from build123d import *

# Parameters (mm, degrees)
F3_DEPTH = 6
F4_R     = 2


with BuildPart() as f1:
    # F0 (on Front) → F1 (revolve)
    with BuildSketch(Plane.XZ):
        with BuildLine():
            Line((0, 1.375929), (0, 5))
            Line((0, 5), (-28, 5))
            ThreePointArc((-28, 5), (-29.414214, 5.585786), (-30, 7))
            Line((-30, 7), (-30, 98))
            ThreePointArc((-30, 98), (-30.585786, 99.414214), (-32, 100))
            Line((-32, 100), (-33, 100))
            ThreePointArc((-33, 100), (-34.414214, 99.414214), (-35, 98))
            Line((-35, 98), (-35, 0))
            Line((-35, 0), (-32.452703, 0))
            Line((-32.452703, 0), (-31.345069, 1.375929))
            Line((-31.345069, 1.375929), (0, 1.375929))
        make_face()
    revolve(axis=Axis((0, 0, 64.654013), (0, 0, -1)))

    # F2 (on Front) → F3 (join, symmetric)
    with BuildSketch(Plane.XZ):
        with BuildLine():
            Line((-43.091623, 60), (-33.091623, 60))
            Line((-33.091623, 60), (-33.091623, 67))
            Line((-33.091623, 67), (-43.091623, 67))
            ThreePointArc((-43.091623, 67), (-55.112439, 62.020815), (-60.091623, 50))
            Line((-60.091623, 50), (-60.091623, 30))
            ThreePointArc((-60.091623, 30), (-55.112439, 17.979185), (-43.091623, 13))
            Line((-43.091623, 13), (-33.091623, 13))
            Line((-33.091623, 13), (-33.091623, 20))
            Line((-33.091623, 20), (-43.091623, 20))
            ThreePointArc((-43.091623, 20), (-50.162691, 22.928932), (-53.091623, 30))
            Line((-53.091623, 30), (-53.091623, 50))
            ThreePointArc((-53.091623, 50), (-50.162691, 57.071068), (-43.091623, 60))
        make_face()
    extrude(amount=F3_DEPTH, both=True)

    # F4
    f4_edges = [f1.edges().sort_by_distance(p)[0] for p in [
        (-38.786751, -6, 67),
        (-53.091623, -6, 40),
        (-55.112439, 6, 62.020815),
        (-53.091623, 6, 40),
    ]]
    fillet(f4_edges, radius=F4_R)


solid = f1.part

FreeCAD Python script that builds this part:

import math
import FreeCAD as App
import Part
import Sketcher
from FreeCAD import Vector


def edges_at(feature, points):
    """Names of the edges that pass closest to the given points."""
    edges = feature.Shape.Edges
    near = lambda p: min(range(len(edges)), key=lambda i: edges[i].distToShape(Part.Vertex(*p))[0])
    return sorted({f"Edge{near(p) + 1}" for p in points})

doc = App.newDocument("Part")
body = doc.addObject("PartDesign::Body", "Body")

# Sketch on XZ plane
sketch1 = doc.addObject("Sketcher::SketchObject", "Sketch")
body.addObject(sketch1)
sketch1.AttachmentSupport = (doc.XZ_Plane, [""])
sketch1.MapMode = "FlatFace"
sketch1.addGeometry(Part.LineSegment(Vector(0, 1.375929, 0), Vector(0, 5, 0)), False)
sketch1.addGeometry(Part.LineSegment(Vector(0, 5, 0), Vector(-28, 5, 0)), False)
sketch1.addGeometry(Part.ArcOfCircle(Part.Circle(Vector(-28.000001, 6.999999, 0), Vector(0, 0, 1), 1.999999), math.radians(179.999957), math.radians(270.000043)), False)
sketch1.addGeometry(Part.LineSegment(Vector(-30, 7, 0), Vector(-30, 98, 0)), False)
sketch1.addGeometry(Part.ArcOfCircle(Part.Circle(Vector(-31.999999, 98.000001, 0), Vector(0, 0, 1), 1.999999), math.radians(-0.000043), math.radians(90.000043)), False)
sketch1.addGeometry(Part.LineSegment(Vector(-32, 100, 0), Vector(-33, 100, 0)), False)
sketch1.addGeometry(Part.ArcOfCircle(Part.Circle(Vector(-33.000001, 98.000001, 0), Vector(0, 0, 1), 1.999999), math.radians(89.999957), math.radians(180.000043)), False)
sketch1.addGeometry(Part.LineSegment(Vector(-35, 98, 0), Vector(-35, 0, 0)), False)
sketch1.addGeometry(Part.LineSegment(Vector(-35, 0, 0), Vector(-32.452703, 0, 0)), False)
sketch1.addGeometry(Part.LineSegment(Vector(-32.452703, 0, 0), Vector(-31.345069, 1.375929, 0)), False)
sketch1.addGeometry(Part.LineSegment(Vector(-31.345069, 1.375929, 0), Vector(0, 1.375929, 0)), False)
sketch1.addConstraint(Sketcher.Constraint("Coincident", 0, 2, 1, 1))
sketch1.addConstraint(Sketcher.Constraint("Tangent", 1, 2, 2, 2))
sketch1.addConstraint(Sketcher.Constraint("Tangent", 2, 1, 3, 1))
sketch1.addConstraint(Sketcher.Constraint("Tangent", 3, 2, 4, 1))
sketch1.addConstraint(Sketcher.Constraint("Tangent", 4, 2, 5, 1))
sketch1.addConstraint(Sketcher.Constraint("Tangent", 5, 2, 6, 1))
sketch1.addConstraint(Sketcher.Constraint("Tangent", 6, 2, 7, 1))
sketch1.addConstraint(Sketcher.Constraint("Coincident", 7, 2, 8, 1))
sketch1.addConstraint(Sketcher.Constraint("Coincident", 8, 2, 9, 1))
sketch1.addConstraint(Sketcher.Constraint("Coincident", 9, 2, 10, 1))
sketch1.addConstraint(Sketcher.Constraint("Coincident", 10, 2, 0, 1))
sketch1.addConstraint(Sketcher.Constraint("Vertical", 0))
sketch1.addConstraint(Sketcher.Constraint("Horizontal", 1))
sketch1.addConstraint(Sketcher.Constraint("Vertical", 3))
sketch1.addConstraint(Sketcher.Constraint("Horizontal", 5))
sketch1.addConstraint(Sketcher.Constraint("Vertical", 7))
sketch1.addConstraint(Sketcher.Constraint("Horizontal", 8))
sketch1.addConstraint(Sketcher.Constraint("Horizontal", 10))
sketch1.addConstraint(Sketcher.Constraint("Equal", 2, 4))
sketch1.addConstraint(Sketcher.Constraint("Equal", 4, 6))
sketch1.addConstraint(Sketcher.Constraint("PointOnObject", 0, 2, -2))
sketch1.addConstraint(Sketcher.Constraint("PointOnObject", 7, 2, -1))
sketch1.addConstraint(Sketcher.Constraint("Radius", 2, 1.999999))
sketch1.addConstraint(Sketcher.Constraint("DistanceX", 1, 2, 1, 1, 28.0))
sketch1.addConstraint(Sketcher.Constraint("DistanceX", 5, 2, 5, 1, 1.0))
sketch1.addConstraint(Sketcher.Constraint("DistanceY", 3, 1, 3, 2, 91.0))
sketch1.addConstraint(Sketcher.Constraint("DistanceY", 7, 2, 7, 1, 98.0))
sketch1.addConstraint(Sketcher.Constraint("DistanceX", 10, 1, 10, 2, 31.345069))
sketch1.addConstraint(Sketcher.Constraint("DistanceY", 0, 1, 0, 2, 3.624071))
sketch1.addConstraint(Sketcher.Constraint("DistanceX", 8, 2, 2, 3, 4.452702))
revolution = doc.addObject("PartDesign::Revolution", "Revolution")
body.addObject(revolution)
revolution.Profile = sketch1
revolution.ReferenceAxis = (sketch1, ["V_Axis"])
revolution.Angle = 360

# Sketch on XZ plane
sketch2 = doc.addObject("Sketcher::SketchObject", "Sketch001")
body.addObject(sketch2)
sketch2.AttachmentSupport = (doc.XZ_Plane, [""])
sketch2.MapMode = "FlatFace"
sketch2.addGeometry(Part.LineSegment(Vector(-43.091623, 60, 0), Vector(-33.091623, 60, 0)), False)
sketch2.addGeometry(Part.LineSegment(Vector(-33.091623, 60, 0), Vector(-33.091623, 67, 0)), False)
sketch2.addGeometry(Part.LineSegment(Vector(-33.091623, 67, 0), Vector(-43.091623, 67, 0)), False)
sketch2.addGeometry(Part.ArcOfCircle(Part.Circle(Vector(-43.091624, 50.000001, 0), Vector(0, 0, 1), 16.999999), math.radians(89.999997), math.radians(180.000003)), False)
sketch2.addGeometry(Part.LineSegment(Vector(-60.091623, 50, 0), Vector(-60.091623, 30, 0)), False)
sketch2.addGeometry(Part.ArcOfCircle(Part.Circle(Vector(-43.091624, 29.999999, 0), Vector(0, 0, 1), 16.999999), math.radians(179.999997), math.radians(270.000003)), False)
sketch2.addGeometry(Part.LineSegment(Vector(-43.091623, 13, 0), Vector(-33.091623, 13, 0)), False)
sketch2.addGeometry(Part.LineSegment(Vector(-33.091623, 13, 0), Vector(-33.091623, 20, 0)), False)
sketch2.addGeometry(Part.LineSegment(Vector(-33.091623, 20, 0), Vector(-43.091623, 20, 0)), False)
sketch2.addGeometry(Part.ArcOfCircle(Part.Circle(Vector(-43.091624, 29.999999, 0), Vector(0, 0, 1), 9.999999), math.radians(179.999996), math.radians(270.000004)), False)
sketch2.addGeometry(Part.LineSegment(Vector(-53.091623, 30, 0), Vector(-53.091623, 50, 0)), False)
sketch2.addGeometry(Part.ArcOfCircle(Part.Circle(Vector(-43.091624, 50.000001, 0), Vector(0, 0, 1), 9.999999), math.radians(89.999996), math.radians(180.000004)), False)
sketch2.addConstraint(Sketcher.Constraint("Coincident", 0, 2, 1, 1))
sketch2.addConstraint(Sketcher.Constraint("Coincident", 1, 2, 2, 1))
sketch2.addConstraint(Sketcher.Constraint("Tangent", 2, 2, 3, 1))
sketch2.addConstraint(Sketcher.Constraint("Tangent", 3, 2, 4, 1))
sketch2.addConstraint(Sketcher.Constraint("Tangent", 4, 2, 5, 1))
sketch2.addConstraint(Sketcher.Constraint("Tangent", 5, 2, 6, 1))
sketch2.addConstraint(Sketcher.Constraint("Coincident", 6, 2, 7, 1))
sketch2.addConstraint(Sketcher.Constraint("Coincident", 7, 2, 8, 1))
sketch2.addConstraint(Sketcher.Constraint("Tangent", 8, 2, 9, 2))
sketch2.addConstraint(Sketcher.Constraint("Tangent", 9, 1, 10, 1))
sketch2.addConstraint(Sketcher.Constraint("Tangent", 10, 2, 11, 2))
sketch2.addConstraint(Sketcher.Constraint("Tangent", 11, 1, 0, 1))
sketch2.addConstraint(Sketcher.Constraint("Horizontal", 0))
sketch2.addConstraint(Sketcher.Constraint("Vertical", 1))
sketch2.addConstraint(Sketcher.Constraint("Horizontal", 2))
sketch2.addConstraint(Sketcher.Constraint("Vertical", 4))
sketch2.addConstraint(Sketcher.Constraint("Horizontal", 6))
sketch2.addConstraint(Sketcher.Constraint("Vertical", 7))
sketch2.addConstraint(Sketcher.Constraint("Horizontal", 8))
sketch2.addConstraint(Sketcher.Constraint("Vertical", 10))
sketch2.addConstraint(Sketcher.Constraint("Coincident", 9, 3, 5, 3))
sketch2.addConstraint(Sketcher.Constraint("Coincident", 11, 3, 3, 3))
sketch2.addConstraint(Sketcher.Constraint("Equal", 3, 5))
sketch2.addConstraint(Sketcher.Constraint("Vertical", 1, 2, 6, 2))
sketch2.addConstraint(Sketcher.Constraint("Radius", 3, 16.999999))
sketch2.addConstraint(Sketcher.Constraint("Radius", 9, 9.999999))
sketch2.addConstraint(Sketcher.Constraint("DistanceX", 0, 1, 0, 2, 10.0))
sketch2.addConstraint(Sketcher.Constraint("DistanceY", 4, 2, 4, 1, 20.0))
sketch2.addConstraint(Sketcher.Constraint("DistanceY", -1, 1, 3, 3, 50.000001))
sketch2.addConstraint(Sketcher.Constraint("DistanceX", 3, 3, -1, 1, 43.091624))
pad1 = doc.addObject("PartDesign::Pad", "Pad")
body.addObject(pad1)
pad1.Profile = sketch2
pad1.Length = 12
pad1.Midplane = True
doc.recompute()

fillet = doc.addObject("PartDesign::Fillet", "Fillet")
body.addObject(fillet)
fillet.Base = (pad1, edges_at(pad1, [
    (-38.787, -6, 67),
    (-53.092, -6, 40),
    (-55.112, 6, 62.021),
    (-53.092, 6, 40),
]))
fillet.Radius = 2

doc.recompute()
